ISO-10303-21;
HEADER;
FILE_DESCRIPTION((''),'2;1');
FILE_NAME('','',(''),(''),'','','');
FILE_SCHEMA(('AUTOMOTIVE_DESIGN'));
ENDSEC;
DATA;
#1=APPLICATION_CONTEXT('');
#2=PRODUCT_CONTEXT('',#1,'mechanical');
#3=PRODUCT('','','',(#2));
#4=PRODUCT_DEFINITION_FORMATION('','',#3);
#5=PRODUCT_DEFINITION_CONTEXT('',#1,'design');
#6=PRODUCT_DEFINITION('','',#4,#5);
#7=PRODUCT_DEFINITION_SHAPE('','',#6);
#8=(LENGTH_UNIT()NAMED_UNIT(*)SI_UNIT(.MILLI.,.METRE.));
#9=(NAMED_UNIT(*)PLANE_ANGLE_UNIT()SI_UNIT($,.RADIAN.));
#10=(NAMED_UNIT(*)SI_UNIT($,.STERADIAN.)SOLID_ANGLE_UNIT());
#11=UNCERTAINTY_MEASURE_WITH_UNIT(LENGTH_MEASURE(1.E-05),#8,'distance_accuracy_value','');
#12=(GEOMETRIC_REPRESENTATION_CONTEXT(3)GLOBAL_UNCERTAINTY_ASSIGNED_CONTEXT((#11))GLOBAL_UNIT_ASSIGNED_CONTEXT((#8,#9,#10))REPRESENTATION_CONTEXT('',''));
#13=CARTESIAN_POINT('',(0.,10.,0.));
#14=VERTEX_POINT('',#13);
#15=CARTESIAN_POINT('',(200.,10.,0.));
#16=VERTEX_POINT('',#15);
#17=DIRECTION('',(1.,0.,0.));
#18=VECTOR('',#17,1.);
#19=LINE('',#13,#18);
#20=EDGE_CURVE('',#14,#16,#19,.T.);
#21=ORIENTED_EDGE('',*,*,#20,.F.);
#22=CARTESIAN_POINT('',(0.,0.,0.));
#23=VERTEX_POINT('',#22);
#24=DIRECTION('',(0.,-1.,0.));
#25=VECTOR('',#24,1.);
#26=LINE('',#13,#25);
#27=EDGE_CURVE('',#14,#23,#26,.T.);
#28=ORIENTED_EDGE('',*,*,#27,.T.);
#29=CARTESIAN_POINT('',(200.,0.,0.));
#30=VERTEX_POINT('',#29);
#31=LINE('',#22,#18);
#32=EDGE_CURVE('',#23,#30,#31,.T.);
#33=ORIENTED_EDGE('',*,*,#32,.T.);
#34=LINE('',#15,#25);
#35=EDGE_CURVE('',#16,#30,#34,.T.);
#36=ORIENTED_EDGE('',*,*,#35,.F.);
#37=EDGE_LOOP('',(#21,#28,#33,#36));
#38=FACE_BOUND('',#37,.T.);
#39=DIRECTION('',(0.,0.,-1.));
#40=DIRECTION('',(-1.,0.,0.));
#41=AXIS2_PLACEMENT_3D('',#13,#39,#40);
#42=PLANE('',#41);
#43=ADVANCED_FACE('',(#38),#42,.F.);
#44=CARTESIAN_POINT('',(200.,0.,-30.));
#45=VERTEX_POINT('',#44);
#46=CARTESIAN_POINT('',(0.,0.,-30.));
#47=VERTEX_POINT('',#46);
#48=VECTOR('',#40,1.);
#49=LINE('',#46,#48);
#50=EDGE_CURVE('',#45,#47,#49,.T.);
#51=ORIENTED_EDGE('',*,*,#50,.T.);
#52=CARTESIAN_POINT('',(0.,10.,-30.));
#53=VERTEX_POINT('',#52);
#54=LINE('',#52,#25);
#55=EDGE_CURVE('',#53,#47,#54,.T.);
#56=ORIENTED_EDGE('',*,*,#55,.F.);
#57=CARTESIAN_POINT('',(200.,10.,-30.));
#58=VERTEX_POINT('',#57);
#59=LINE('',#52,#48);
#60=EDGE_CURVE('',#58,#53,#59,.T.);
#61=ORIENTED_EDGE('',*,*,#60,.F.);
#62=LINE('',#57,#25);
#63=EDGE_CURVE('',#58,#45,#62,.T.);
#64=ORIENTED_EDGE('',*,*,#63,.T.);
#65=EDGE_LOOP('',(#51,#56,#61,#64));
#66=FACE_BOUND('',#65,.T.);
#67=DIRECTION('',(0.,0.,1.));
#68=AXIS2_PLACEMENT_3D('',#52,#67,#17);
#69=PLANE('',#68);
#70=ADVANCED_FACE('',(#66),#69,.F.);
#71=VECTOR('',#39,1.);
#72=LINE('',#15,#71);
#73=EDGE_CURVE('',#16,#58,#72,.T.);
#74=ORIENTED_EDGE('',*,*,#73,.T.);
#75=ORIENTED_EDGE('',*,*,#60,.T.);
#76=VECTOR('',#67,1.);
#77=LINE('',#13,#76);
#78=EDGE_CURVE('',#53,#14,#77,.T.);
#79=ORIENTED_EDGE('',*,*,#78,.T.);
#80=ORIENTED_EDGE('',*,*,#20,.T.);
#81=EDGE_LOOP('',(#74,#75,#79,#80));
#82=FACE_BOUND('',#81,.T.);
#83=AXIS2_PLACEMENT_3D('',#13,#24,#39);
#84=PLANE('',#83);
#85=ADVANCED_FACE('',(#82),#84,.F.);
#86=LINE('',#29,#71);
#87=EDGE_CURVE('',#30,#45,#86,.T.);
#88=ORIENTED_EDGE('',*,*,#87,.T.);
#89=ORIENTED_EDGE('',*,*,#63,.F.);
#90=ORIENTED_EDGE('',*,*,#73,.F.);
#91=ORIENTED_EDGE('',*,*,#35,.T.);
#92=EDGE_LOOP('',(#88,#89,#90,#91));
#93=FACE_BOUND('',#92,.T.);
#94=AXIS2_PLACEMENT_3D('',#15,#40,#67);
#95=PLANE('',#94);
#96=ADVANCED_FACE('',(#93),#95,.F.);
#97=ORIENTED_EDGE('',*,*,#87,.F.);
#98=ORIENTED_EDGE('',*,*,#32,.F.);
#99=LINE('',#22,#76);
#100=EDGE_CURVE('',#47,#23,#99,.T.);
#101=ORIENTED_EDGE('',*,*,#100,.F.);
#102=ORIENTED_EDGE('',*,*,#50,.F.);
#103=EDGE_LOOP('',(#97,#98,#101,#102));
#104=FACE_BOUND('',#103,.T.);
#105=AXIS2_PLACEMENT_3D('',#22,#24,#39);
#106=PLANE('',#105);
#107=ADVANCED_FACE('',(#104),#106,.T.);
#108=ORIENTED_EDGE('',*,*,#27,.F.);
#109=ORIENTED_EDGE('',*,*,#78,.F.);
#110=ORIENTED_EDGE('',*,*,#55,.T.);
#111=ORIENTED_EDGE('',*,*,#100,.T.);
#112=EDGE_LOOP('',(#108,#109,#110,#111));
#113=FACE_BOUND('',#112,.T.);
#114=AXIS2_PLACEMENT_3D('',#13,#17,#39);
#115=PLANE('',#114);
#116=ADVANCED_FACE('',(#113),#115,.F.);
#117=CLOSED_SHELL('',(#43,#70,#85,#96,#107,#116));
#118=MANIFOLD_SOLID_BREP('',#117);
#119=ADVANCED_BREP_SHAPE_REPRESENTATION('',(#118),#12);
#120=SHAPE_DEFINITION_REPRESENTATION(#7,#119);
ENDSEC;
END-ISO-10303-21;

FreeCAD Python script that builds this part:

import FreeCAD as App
import Part
import Sketcher
from FreeCAD import Vector
Q = App.Units.Quantity

doc = App.newDocument("Part")
params = doc.addObject("Spreadsheet::Sheet", "Params")
for row, (alias, value) in enumerate([
    ("sketch1_width", "200 mm"),
    ("sketch1_height", "30 mm"),
    ("pad1_length", "10 mm"),
], start=1):
    params.set(f"A{row}", alias)
    params.set(f"B{row}", "=" + value)
    params.setAlias(f"B{row}", alias)

body = doc.addObject("PartDesign::Body", "Body")

# Sketch on XZ plane
sketch1 = body.newObject("Sketcher::SketchObject", "Sketch")
sketch1.AttachmentSupport = (doc.getObject("XZ_Plane"), [""])
sketch1.MapMode = "FlatFace"
sketch1.addGeometry([
    Part.LineSegment(Vector(0, -30, 0), Vector(0, 0, 0)),
    Part.LineSegment(Vector(0, 0, 0), Vector(200, 0, 0)),
    Part.LineSegment(Vector(200, 0, 0), Vector(200, -30, 0)),
    Part.LineSegment(Vector(200, -30, 0), Vector(0, -30, 0)),
], False)
sketch1.addConstraint([
    Sketcher.Constraint("Coincident", 0, 2, 1, 1),
    Sketcher.Constraint("Coincident", 1, 2, 2, 1),
    Sketcher.Constraint("Coincident", 2, 2, 3, 1),
    Sketcher.Constraint("Coincident", 3, 2, 0, 1),
    Sketcher.Constraint("Vertical", 0),
    Sketcher.Constraint("Horizontal", 1),
    Sketcher.Constraint("Vertical", 2),
    Sketcher.Constraint("Horizontal", 3),
    Sketcher.Constraint("Coincident", 0, 2, -1, 1),
    Sketcher.Constraint("DistanceX", 1, 1, 1, 2, Q("200 mm")),
    Sketcher.Constraint("DistanceY", 0, 1, 0, 2, Q("30 mm")),
])
sketch1.setExpression("Constraints[9]", "Params.sketch1_width")
sketch1.setExpression("Constraints[10]", "Params.sketch1_height")
pad1 = body.newObject("PartDesign::Pad", "Pad")
pad1.Profile = sketch1
pad1.setExpression("Length", "Params.pad1_length")
pad1.Reversed = True

doc.recompute()
